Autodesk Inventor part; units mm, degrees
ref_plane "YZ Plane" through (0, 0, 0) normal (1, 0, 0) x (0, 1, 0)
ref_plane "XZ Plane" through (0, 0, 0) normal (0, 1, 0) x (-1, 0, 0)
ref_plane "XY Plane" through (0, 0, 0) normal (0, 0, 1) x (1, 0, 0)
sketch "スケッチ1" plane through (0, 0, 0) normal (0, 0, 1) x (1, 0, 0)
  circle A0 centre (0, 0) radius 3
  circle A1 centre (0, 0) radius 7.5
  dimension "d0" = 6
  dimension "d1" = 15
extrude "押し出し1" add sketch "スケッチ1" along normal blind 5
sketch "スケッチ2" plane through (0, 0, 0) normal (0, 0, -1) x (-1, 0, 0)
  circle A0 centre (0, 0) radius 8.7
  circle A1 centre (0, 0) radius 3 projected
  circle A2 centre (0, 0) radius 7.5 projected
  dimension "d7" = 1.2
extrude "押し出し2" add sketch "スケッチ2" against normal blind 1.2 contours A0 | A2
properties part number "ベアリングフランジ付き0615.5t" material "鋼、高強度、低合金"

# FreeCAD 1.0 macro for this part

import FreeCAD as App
import Part
import Sketcher
from FreeCAD import Vector
Q = App.Units.Quantity

doc = App.newDocument("Part")
params = doc.addObject("Spreadsheet::Sheet", "Params")
for row, (alias, value) in enumerate([
    ("sketch1_diameter", "15 mm"),
    ("sketch1_diameter2", "6 mm"),
    ("pad1_length", "5 mm"),
    ("sketch2_diameter", "6 mm"),
    ("sketch2_diameter2", "17.4 mm"),
    ("pad2_length", "1.2 mm"),
], start=1):
    params.set(f"A{row}", alias)
    params.set(f"B{row}", "=" + value)
    params.setAlias(f"B{row}", alias)

body = doc.addObject("PartDesign::Body", "Body")

sketch1 = body.newObject("Sketcher::SketchObject", "Sketch")
sketch1.AttachmentSupport = (doc.getObject("XY_Plane"), [""])
sketch1.MapMode = "FlatFace"
sketch1.addGeometry(Part.Circle(Vector(0, 0, 0), Vector(0, 0, 1), 7.5), False)
sketch1.addGeometry(Part.Circle(Vector(0, 0, 0), Vector(0, 0, 1), 3), False)
sketch1.addConstraint(Sketcher.Constraint("Coincident", 0, 3, -1, 1))
sketch1.addConstraint(Sketcher.Constraint("Coincident", 1, 3, -1, 1))
sketch1.addConstraint(Sketcher.Constraint("Diameter", 0, Q("15 mm")))
sketch1.addConstraint(Sketcher.Constraint("Diameter", 1, Q("6 mm")))
sketch1.setExpression("Constraints[2]", "Params.sketch1_diameter")
sketch1.setExpression("Constraints[3]", "Params.sketch1_diameter2")
pad1 = body.newObject("PartDesign::Pad", "Pad")
pad1.Profile = sketch1
pad1.setExpression("Length", "Params.pad1_length")

sketch2 = body.newObject("Sketcher::SketchObject", "Sketch001")
sketch2.AttachmentSupport = (doc.getObject("XY_Plane"), [""])
sketch2.MapMode = "FlatFace"
sketch2.addGeometry(Part.Circle(Vector(0, 0, 0), Vector(0, 0, 1), 8.7), False)
sketch2.addGeometry(Part.Circle(Vector(0, 0, 0), Vector(0, 0, 1), 3), False)
sketch2.addConstraint(Sketcher.Constraint("Coincident", 0, 3, -1, 1))
sketch2.addConstraint(Sketcher.Constraint("Coincident", 1, 3, -1, 1))
sketch2.addConstraint(Sketcher.Constraint("Diameter", 1, Q("6 mm")))
sketch2.addConstraint(Sketcher.Constraint("Diameter", 0, Q("17.4 mm")))
sketch2.setExpression("Constraints[2]", "Params.sketch2_diameter")
sketch2.setExpression("Constraints[3]", "Params.sketch2_diameter2")
pad2 = body.newObject("PartDesign::Pad", "Pad001")
pad2.Profile = sketch2
pad2.setExpression("Length", "Params.pad2_length")

doc.recompute()
